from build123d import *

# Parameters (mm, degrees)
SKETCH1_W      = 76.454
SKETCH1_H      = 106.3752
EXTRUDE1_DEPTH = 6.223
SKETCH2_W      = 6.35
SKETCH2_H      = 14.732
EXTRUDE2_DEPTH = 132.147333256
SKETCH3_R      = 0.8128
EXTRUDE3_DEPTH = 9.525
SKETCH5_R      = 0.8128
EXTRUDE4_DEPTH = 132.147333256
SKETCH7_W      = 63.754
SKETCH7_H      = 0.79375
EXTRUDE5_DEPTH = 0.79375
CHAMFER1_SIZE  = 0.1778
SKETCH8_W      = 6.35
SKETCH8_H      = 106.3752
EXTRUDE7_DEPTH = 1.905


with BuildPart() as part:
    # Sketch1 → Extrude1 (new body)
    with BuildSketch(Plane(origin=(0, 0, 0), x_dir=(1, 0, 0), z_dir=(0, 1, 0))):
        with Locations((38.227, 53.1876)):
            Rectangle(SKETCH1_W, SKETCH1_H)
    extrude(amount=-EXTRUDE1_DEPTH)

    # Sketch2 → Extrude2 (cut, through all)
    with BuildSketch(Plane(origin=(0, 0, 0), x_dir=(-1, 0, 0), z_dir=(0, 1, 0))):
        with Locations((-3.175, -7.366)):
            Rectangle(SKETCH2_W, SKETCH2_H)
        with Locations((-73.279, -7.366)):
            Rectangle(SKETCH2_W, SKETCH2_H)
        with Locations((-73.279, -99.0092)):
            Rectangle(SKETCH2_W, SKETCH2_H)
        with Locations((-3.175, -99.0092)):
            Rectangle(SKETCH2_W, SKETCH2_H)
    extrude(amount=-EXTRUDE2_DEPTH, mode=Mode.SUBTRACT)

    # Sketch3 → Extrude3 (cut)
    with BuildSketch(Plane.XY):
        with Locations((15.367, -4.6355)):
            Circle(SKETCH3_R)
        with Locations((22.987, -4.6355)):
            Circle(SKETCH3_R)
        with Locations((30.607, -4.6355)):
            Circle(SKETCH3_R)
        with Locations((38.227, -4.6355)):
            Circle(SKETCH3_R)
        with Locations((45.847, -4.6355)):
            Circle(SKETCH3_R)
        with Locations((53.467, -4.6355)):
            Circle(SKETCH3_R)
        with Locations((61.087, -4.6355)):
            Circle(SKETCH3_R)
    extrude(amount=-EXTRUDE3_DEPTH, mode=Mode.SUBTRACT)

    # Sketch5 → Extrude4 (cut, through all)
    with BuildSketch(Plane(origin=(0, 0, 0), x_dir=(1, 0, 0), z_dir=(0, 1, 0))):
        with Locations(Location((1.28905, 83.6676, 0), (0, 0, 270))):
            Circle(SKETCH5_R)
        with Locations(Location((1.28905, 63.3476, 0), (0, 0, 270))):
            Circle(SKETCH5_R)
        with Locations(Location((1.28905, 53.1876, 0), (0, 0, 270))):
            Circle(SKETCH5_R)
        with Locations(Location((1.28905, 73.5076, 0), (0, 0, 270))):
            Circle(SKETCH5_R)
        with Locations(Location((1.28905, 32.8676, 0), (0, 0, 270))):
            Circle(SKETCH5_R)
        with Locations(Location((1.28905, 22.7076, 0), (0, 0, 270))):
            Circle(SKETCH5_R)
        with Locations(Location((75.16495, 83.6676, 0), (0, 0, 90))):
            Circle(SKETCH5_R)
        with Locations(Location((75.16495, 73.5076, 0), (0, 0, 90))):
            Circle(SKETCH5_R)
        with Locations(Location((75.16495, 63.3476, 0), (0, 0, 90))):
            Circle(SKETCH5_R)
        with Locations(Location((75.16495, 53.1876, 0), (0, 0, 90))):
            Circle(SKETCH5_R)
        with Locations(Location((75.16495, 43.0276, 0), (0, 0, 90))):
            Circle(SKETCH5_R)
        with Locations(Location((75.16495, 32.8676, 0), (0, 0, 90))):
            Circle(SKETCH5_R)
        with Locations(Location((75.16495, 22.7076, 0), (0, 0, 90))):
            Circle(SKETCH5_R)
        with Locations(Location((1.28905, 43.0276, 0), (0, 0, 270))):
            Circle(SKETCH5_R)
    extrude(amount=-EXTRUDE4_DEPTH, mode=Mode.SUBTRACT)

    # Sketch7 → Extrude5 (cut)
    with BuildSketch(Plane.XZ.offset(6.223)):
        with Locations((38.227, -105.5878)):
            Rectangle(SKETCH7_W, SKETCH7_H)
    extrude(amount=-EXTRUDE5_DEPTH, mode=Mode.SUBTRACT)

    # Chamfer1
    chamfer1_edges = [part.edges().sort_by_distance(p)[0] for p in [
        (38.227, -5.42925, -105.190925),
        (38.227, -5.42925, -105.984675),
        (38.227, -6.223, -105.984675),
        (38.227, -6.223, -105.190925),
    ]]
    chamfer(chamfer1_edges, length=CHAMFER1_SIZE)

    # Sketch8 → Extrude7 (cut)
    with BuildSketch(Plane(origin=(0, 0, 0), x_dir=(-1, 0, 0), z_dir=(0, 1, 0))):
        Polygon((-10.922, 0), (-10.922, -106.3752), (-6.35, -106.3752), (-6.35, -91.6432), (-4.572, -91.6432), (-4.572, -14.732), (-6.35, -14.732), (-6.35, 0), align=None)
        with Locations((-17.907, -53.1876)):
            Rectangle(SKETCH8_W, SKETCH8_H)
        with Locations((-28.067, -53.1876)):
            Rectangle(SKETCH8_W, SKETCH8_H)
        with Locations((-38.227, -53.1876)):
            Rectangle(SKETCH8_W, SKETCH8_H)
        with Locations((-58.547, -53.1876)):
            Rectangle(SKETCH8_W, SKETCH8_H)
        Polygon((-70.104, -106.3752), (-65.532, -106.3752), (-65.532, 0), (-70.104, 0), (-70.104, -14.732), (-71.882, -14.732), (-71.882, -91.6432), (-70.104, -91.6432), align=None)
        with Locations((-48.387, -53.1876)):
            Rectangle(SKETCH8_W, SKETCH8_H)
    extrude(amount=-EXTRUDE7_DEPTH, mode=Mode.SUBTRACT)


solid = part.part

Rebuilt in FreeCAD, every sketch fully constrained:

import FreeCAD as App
import Part
import Sketcher
Q = App.Units.Quantity


def edges_at(feature, points):
    """Names of the edges that pass closest to the given points."""
    edges = feature.Shape.Edges
    near = lambda p: min(range(len(edges)), key=lambda i: edges[i].distToShape(Part.Vertex(*p))[0])
    return sorted({f"Edge{near(p) + 1}" for p in points})


def add_polygon(sketch, points):
    """Adds a closed chain of lines whose ends are joined by coincident constraints."""
    first, n = sketch.GeometryCount, len(points)
    for a, b in zip(points, points[1:] + points[:1]):
        sketch.addGeometry(Part.LineSegment(App.Vector(*a, 0), App.Vector(*b, 0)), False)
    for i in range(n):
        sketch.addConstraint(Sketcher.Constraint("Coincident", first + i, 2, first + (i + 1) % n, 1))

doc = App.newDocument("Part")
body = doc.addObject("PartDesign::Body", "Body")

# Sketch on XZ plane
sketch1 = body.newObject("Sketcher::SketchObject", "Sketch")
sketch1.AttachmentSupport = (doc.getObject("XZ_Plane"), [""])
sketch1.MapMode = "FlatFace"
add_polygon(sketch1, [(0, -106), (0, 0), (76, 0), (76, -106)])  # lines 0-3
sketch1.addConstraint(Sketcher.Constraint("Vertical", 0))
sketch1.addConstraint(Sketcher.Constraint("Horizontal", 1))
sketch1.addConstraint(Sketcher.Constraint("Vertical", 2))
sketch1.addConstraint(Sketcher.Constraint("Horizontal", 3))
sketch1.addConstraint(Sketcher.Constraint("Coincident", 0, 2, -1, 1))
sketch1.addConstraint(Sketcher.Constraint("DistanceX", 1, 1, 1, 2, Q("3.01 in")))
sketch1.addConstraint(Sketcher.Constraint("DistanceY", 0, 1, 0, 2, Q("4.188 in")))
pad1 = body.newObject("PartDesign::Pad", "Pad")
pad1.Profile = sketch1
pad1.Length = Q("0.245 in")

# Sketch on XZ plane
sketch2 = body.newObject("Sketcher::SketchObject", "Sketch001")
sketch2.AttachmentSupport = (doc.getObject("XZ_Plane"), [""])
sketch2.MapMode = "FlatFace"
add_polygon(sketch2, [(6, 0), (6, -15), (0, -15), (0, 0)])  # lines 0-3
add_polygon(sketch2, [(76, 0), (76, -15), (70, -15), (70, 0)])  # lines 4-7
add_polygon(sketch2, [(76, -92), (76, -106), (70, -106), (70, -92)])  # lines 8-11
add_polygon(sketch2, [(6, -92), (6, -106), (0, -106), (0, -92)])  # lines 12-15
sketch2.addConstraint(Sketcher.Constraint("Vertical", 0))
sketch2.addConstraint(Sketcher.Constraint("Horizontal", 1))
sketch2.addConstraint(Sketcher.Constraint("Vertical", 2))
sketch2.addConstraint(Sketcher.Constraint("Horizontal", 3))
sketch2.addConstraint(Sketcher.Constraint("Vertical", 4))
sketch2.addConstraint(Sketcher.Constraint("Horizontal", 5))
sketch2.addConstraint(Sketcher.Constraint("Vertical", 6))
sketch2.addConstraint(Sketcher.Constraint("Horizontal", 7))
sketch2.addConstraint(Sketcher.Constraint("Vertical", 8))
sketch2.addConstraint(Sketcher.Constraint("Horizontal", 9))
sketch2.addConstraint(Sketcher.Constraint("Vertical", 10))
sketch2.addConstraint(Sketcher.Constraint("Horizontal", 11))
sketch2.addConstraint(Sketcher.Constraint("Vertical", 12))
sketch2.addConstraint(Sketcher.Constraint("Horizontal", 13))
sketch2.addConstraint(Sketcher.Constraint("Vertical", 14))
sketch2.addConstraint(Sketcher.Constraint("Horizontal", 15))
sketch2.addConstraint(Sketcher.Constraint("Coincident", 2, 2, -1, 1))
sketch2.addConstraint(Sketcher.Constraint("PointOnObject", 6, 2, -1))
sketch2.addConstraint(Sketcher.Constraint("PointOnObject", 13, 2, -2))
sketch2.addConstraint(Sketcher.Constraint("Horizontal", 1, 2, 4, 2))
sketch2.addConstraint(Sketcher.Constraint("Horizontal", 9, 2, 12, 2))
sketch2.addConstraint(Sketcher.Constraint("Horizontal", 11, 2, 14, 2))
sketch2.addConstraint(Sketcher.Constraint("Vertical", 7, 2, 8, 2))
sketch2.addConstraint(Sketcher.Constraint("Vertical", 6, 2, 9, 2))
sketch2.addConstraint(Sketcher.Constraint("Vertical", 3, 2, 12, 2))
sketch2.addConstraint(Sketcher.Constraint("Equal", 3, 5))
sketch2.addConstraint(Sketcher.Constraint("Equal", 6, 8))
sketch2.addConstraint(Sketcher.Constraint("DistanceX", 1, 2, 1, 1, Q("0.25 in")))
sketch2.addConstraint(Sketcher.Constraint("DistanceY", 0, 2, 0, 1, Q("0.58 in")))
sketch2.addConstraint(Sketcher.Constraint("DistanceX", -1, 1, 4, 2, Q("3.01 in")))
sketch2.addConstraint(Sketcher.Constraint("DistanceY", 8, 2, -1, 1, Q("4.188 in")))
pocket1 = body.newObject("PartDesign::Pocket", "Pocket")
pocket1.Profile = sketch2
pocket1.Type = "ThroughAll"
pocket1.Reversed = True

# Sketch on XY plane
sketch3 = body.newObject("Sketcher::SketchObject", "Sketch002")
sketch3.AttachmentSupport = (doc.getObject("XY_Plane"), [""])
sketch3.MapMode = "FlatFace"
sketch3.addGeometry(Part.Circle(App.Vector(15.4, -4.6, 0), App.Vector(0, 0, 1), 0.8), False)
sketch3.addGeometry(Part.Circle(App.Vector(23, -4.6, 0), App.Vector(0, 0, 1), 0.8), False)
sketch3.addGeometry(Part.Circle(App.Vector(30.6, -4.6, 0), App.Vector(0, 0, 1), 0.8), False)
sketch3.addGeometry(Part.Circle(App.Vector(38.2, -4.6, 0), App.Vector(0, 0, 1), 0.8), False)
sketch3.addGeometry(Part.Circle(App.Vector(45.8, -4.6, 0), App.Vector(0, 0, 1), 0.8), False)
sketch3.addGeometry(Part.Circle(App.Vector(53.5, -4.6, 0), App.Vector(0, 0, 1), 0.8), False)
sketch3.addGeometry(Part.Circle(App.Vector(61.1, -4.6, 0), App.Vector(0, 0, 1), 0.8), False)
sketch3.addConstraint(Sketcher.Constraint("Equal", 0, 1))
sketch3.addConstraint(Sketcher.Constraint("Equal", 1, 2))
sketch3.addConstraint(Sketcher.Constraint("Equal", 2, 3))
sketch3.addConstraint(Sketcher.Constraint("Equal", 3, 4))
sketch3.addConstraint(Sketcher.Constraint("Equal", 4, 5))
sketch3.addConstraint(Sketcher.Constraint("Equal", 5, 6))
sketch3.addConstraint(Sketcher.Constraint("Horizontal", 0, 3, 1, 3))
sketch3.addConstraint(Sketcher.Constraint("Horizontal", 1, 3, 2, 3))
sketch3.addConstraint(Sketcher.Constraint("Horizontal", 2, 3, 3, 3))
sketch3.addConstraint(Sketcher.Constraint("Horizontal", 3, 3, 4, 3))
sketch3.addConstraint(Sketcher.Constraint("Horizontal", 4, 3, 5, 3))
sketch3.addConstraint(Sketcher.Constraint("Horizontal", 5, 3, 6, 3))
sketch3.addConstraint(Sketcher.Constraint("Diameter", 0, Q("0.064 in")))
sketch3.addConstraint(Sketcher.Constraint("DistanceX", 0, 3, 1, 3, Q("0.3 in")))
sketch3.addConstraint(Sketcher.Constraint("DistanceX", 1, 3, 2, 3, Q("0.3 in")))
sketch3.addConstraint(Sketcher.Constraint("DistanceX", 2, 3, 3, 3, Q("0.3 in")))
sketch3.addConstraint(Sketcher.Constraint("DistanceX", 3, 3, 4, 3, Q("0.3 in")))
sketch3.addConstraint(Sketcher.Constraint("DistanceX", 4, 3, 5, 3, Q("0.3 in")))
sketch3.addConstraint(Sketcher.Constraint("DistanceX", 5, 3, 6, 3, Q("0.3 in")))
sketch3.addConstraint(Sketcher.Constraint("DistanceX", -1, 1, 0, 3, Q("0.605 in")))
sketch3.addConstraint(Sketcher.Constraint("DistanceY", 0, 3, -1, 1, Q("0.1825 in")))
pocket2 = body.newObject("PartDesign::Pocket", "Pocket001")
pocket2.Profile = sketch3
pocket2.Length = Q("0.375 in")

# Sketch on XZ plane
sketch4 = body.newObject("Sketcher::SketchObject", "Sketch003")
sketch4.AttachmentSupport = (doc.getObject("XZ_Plane"), [""])
sketch4.MapMode = "FlatFace"
sketch4.addGeometry(Part.Circle(App.Vector(1.3, -83.7, 0), App.Vector(0, 0, 1), 0.8), False)
sketch4.addGeometry(Part.Circle(App.Vector(1.3, -63.3, 0), App.Vector(0, 0, 1), 0.8), False)
sketch4.addGeometry(Part.Circle(App.Vector(1.3, -53.2, 0), App.Vector(0, 0, 1), 0.8), False)
sketch4.addGeometry(Part.Circle(App.Vector(1.3, -73.5, 0), App.Vector(0, 0, 1), 0.8), False)
sketch4.addGeometry(Part.Circle(App.Vector(1.3, -32.9, 0), App.Vector(0, 0, 1), 0.8), False)
sketch4.addGeometry(Part.Circle(App.Vector(1.3, -22.7, 0), App.Vector(0, 0, 1), 0.8), False)
sketch4.addGeometry(Part.Circle(App.Vector(75.2, -83.7, 0), App.Vector(0, 0, 1), 0.8), False)
sketch4.addGeometry(Part.Circle(App.Vector(75.2, -73.5, 0), App.Vector(0, 0, 1), 0.8), False)
sketch4.addGeometry(Part.Circle(App.Vector(75.2, -63.3, 0), App.Vector(0, 0, 1), 0.8), False)
sketch4.addGeometry(Part.Circle(App.Vector(75.2, -53.2, 0), App.Vector(0, 0, 1), 0.8), False)
sketch4.addGeometry(Part.Circle(App.Vector(75.2, -43, 0), App.Vector(0, 0, 1), 0.8), False)
sketch4.addGeometry(Part.Circle(App.Vector(75.2, -32.9, 0), App.Vector(0, 0, 1), 0.8), False)
sketch4.addGeometry(Part.Circle(App.Vector(75.2, -22.7, 0), App.Vector(0, 0, 1), 0.8), False)
sketch4.addGeometry(Part.Circle(App.Vector(1.3, -43, 0), App.Vector(0, 0, 1), 0.8), False)
sketch4.addConstraint(Sketcher.Constraint("Equal", 0, 1))
sketch4.addConstraint(Sketcher.Constraint("Equal", 1, 2))
sketch4.addConstraint(Sketcher.Constraint("Equal", 2, 3))
sketch4.addConstraint(Sketcher.Constraint("Equal", 3, 4))
sketch4.addConstraint(Sketcher.Constraint("Equal", 4, 5))
sketch4.addConstraint(Sketcher.Constraint("Equal", 5, 6))
sketch4.addConstraint(Sketcher.Constraint("Equal", 6, 7))
sketch4.addConstraint(Sketcher.Constraint("Equal", 7, 8))
sketch4.addConstraint(Sketcher.Constraint("Equal", 8, 9))
sketch4.addConstraint(Sketcher.Constraint("Equal", 9, 10))
sketch4.addConstraint(Sketcher.Constraint("Equal", 10, 11))
sketch4.addConstraint(Sketcher.Constraint("Equal", 11, 12))
sketch4.addConstraint(Sketcher.Constraint("Equal", 12, 13))
sketch4.addConstraint(Sketcher.Constraint("Horizontal", 0, 3, 6, 3))
sketch4.addConstraint(Sketcher.Constraint("Horizontal", 3, 3, 7, 3))
sketch4.addConstraint(Sketcher.Constraint("Horizontal", 1, 3, 8, 3))
sketch4.addConstraint(Sketcher.Constraint("Horizontal", 2, 3, 9, 3))
sketch4.addConstraint(Sketcher.Constraint("Horizontal", 4, 3, 11, 3))
sketch4.addConstraint(Sketcher.Constraint("Horizontal", 5, 3, 12, 3))
sketch4.addConstraint(Sketcher.Constraint("Horizontal", 10, 3, 13, 3))
sketch4.addConstraint(Sketcher.Constraint("Vertical", 0, 3, 1, 3))
sketch4.addConstraint(Sketcher.Constraint("Vertical", 1, 3, 2, 3))
sketch4.addConstraint(Sketcher.Constraint("Vertical", 2, 3, 3, 3))
sketch4.addConstraint(Sketcher.Constraint("Vertical", 3, 3, 4, 3))
sketch4.addConstraint(Sketcher.Constraint("Vertical", 4, 3, 5, 3))
sketch4.addConstraint(Sketcher.Constraint("Vertical", 6, 3, 7, 3))
sketch4.addConstraint(Sketcher.Constraint("Vertical", 7, 3, 8, 3))
sketch4.addConstraint(Sketcher.Constraint("Vertical", 8, 3, 9, 3))
sketch4.addConstraint(Sketcher.Constraint("Vertical", 9, 3, 10, 3))
sketch4.addConstraint(Sketcher.Constraint("Vertical", 10, 3, 11, 3))
sketch4.addConstraint(Sketcher.Constraint("Vertical", 11, 3, 12, 3))
sketch4.addConstraint(Sketcher.Constraint("Vertical", 5, 3, 13, 3))
sketch4.addConstraint(Sketcher.Constraint("Diameter", 0, Q("0.064 in")))
sketch4.addConstraint(Sketcher.Constraint("DistanceY", 0, 3, 4, 3, Q("2 in")))
sketch4.addConstraint(Sketcher.Constraint("DistanceY", 3, 3, 5, 3, Q("2 in")))
sketch4.addConstraint(Sketcher.Constraint("DistanceY", 0, 3, 1, 3, Q("0.8 in")))
sketch4.addConstraint(Sketcher.Constraint("DistanceY", 1, 3, 2, 3, Q("0.4 in")))
sketch4.addConstraint(Sketcher.Constraint("DistanceY", 0, 3, 3, 3, Q("0.4 in")))
sketch4.addConstraint(Sketcher.Constraint("DistanceY", 9, 3, 10, 3, Q("0.4 in")))
sketch4.addConstraint(Sketcher.Constraint("DistanceY", 0, 3, -1, 1, Q("3.294 in")))
sketch4.addConstraint(Sketcher.Constraint("DistanceX", 0, 3, 6, 3, Q("2.9085 in")))
sketch4.addConstraint(Sketcher.Constraint("DistanceX", -1, 1, 0, 3, 1.28905))
pocket3 = body.newObject("PartDesign::Pocket", "Pocket002")
pocket3.Profile = sketch4
pocket3.Type = "ThroughAll"
pocket3.Reversed = True

# Sketch on XZ plane
sketch5 = body.newObject("Sketcher::SketchObject", "Sketch004")
sketch5.AttachmentSupport = (doc.getObject("XZ_Plane"), [""])
sketch5.MapMode = "FlatFace"
sketch5.AttachmentOffset = App.Placement(App.Vector(0, 0, 0.245 * 25.4), App.Rotation())
add_polygon(sketch5, [(6.3, -105.2), (6.3, -106), (70.1, -106), (70.1, -105.2)])  # lines 0-3
sketch5.addConstraint(Sketcher.Constraint("Vertical", 0))
sketch5.addConstraint(Sketcher.Constraint("Horizontal", 1))
sketch5.addConstraint(Sketcher.Constraint("Vertical", 2))
sketch5.addConstraint(Sketcher.Constraint("Horizontal", 3))
sketch5.addConstraint(Sketcher.Constraint("DistanceX", 1, 1, 1, 2, Q("2.51 in")))
sketch5.addConstraint(Sketcher.Constraint("DistanceY", 0, 2, 0, 1, Q("0.03125 in")))
sketch5.addConstraint(Sketcher.Constraint("DistanceX", -1, 1, 0, 2, Q("0.25 in")))
sketch5.addConstraint(Sketcher.Constraint("DistanceY", 0, 2, -1, 1, 105.984675))
pocket4 = body.newObject("PartDesign::Pocket", "Pocket003")
pocket4.Profile = sketch5
pocket4.Length = Q("0.03125 in")
doc.recompute()

chamfer = body.newObject("PartDesign::Chamfer", "Chamfer")
chamfer.Base = (pocket4, edges_at(pocket4, [
    (38.227, -5.429, -105.191),
    (38.227, -5.429, -105.985),
    (38.227, -6.223, -105.985),
    (38.227, -6.223, -105.191),
]))
chamfer.Size = Q("0.007 in")

# Sketch on XZ plane
sketch6 = body.newObject("Sketcher::SketchObject", "Sketch005")
sketch6.AttachmentSupport = (doc.getObject("XZ_Plane"), [""])
sketch6.MapMode = "FlatFace"
add_polygon(sketch6, [(10.9, 0), (10.9, -106.4), (6.3, -106.4), (6.3, -91.6), (4.6, -91.6), (4.6, -14.7), (6.3, -14.7), (6.3, 0)])  # lines 0-7
add_polygon(sketch6, [(21.1, 0), (21.1, -106.4), (14.7, -106.4), (14.7, 0)])  # lines 8-11
add_polygon(sketch6, [(31.2, 0), (31.2, -106.4), (24.9, -106.4), (24.9, 0)])  # lines 12-15
add_polygon(sketch6, [(41.4, 0), (41.4, -106.4), (35.1, -106.4), (35.1, 0)])  # lines 16-19
add_polygon(sketch6, [(61.7, 0), (61.7, -106.4), (55.4, -106.4), (55.4, 0)])  # lines 20-23
add_polygon(sketch6, [(70.1, -106.4), (65.5, -106.4), (65.5, 0), (70.1, 0), (70.1, -14.7), (71.9, -14.7), (71.9, -91.6), (70.1, -91.6)])  # lines 24-31
add_polygon(sketch6, [(51.6, 0), (51.6, -106.4), (45.2, -106.4), (45.2, 0)])  # lines 32-35
sketch6.addConstraint(Sketcher.Constraint("Vertical", 0))
sketch6.addConstraint(Sketcher.Constraint("Horizontal", 1))
sketch6.addConstraint(Sketcher.Constraint("Vertical", 2))
sketch6.addConstraint(Sketcher.Constraint("Horizontal", 3))
sketch6.addConstraint(Sketcher.Constraint("Vertical", 4))
sketch6.addConstraint(Sketcher.Constraint("Horizontal", 5))
sketch6.addConstraint(Sketcher.Constraint("Vertical", 6))
sketch6.addConstraint(Sketcher.Constraint("Horizontal", 7))
sketch6.addConstraint(Sketcher.Constraint("Vertical", 8))
sketch6.addConstraint(Sketcher.Constraint("Horizontal", 9))
sketch6.addConstraint(Sketcher.Constraint("Vertical", 10))
sketch6.addConstraint(Sketcher.Constraint("Horizontal", 11))
sketch6.addConstraint(Sketcher.Constraint("Vertical", 12))
sketch6.addConstraint(Sketcher.Constraint("Horizontal", 13))
sketch6.addConstraint(Sketcher.Constraint("Vertical", 14))
sketch6.addConstraint(Sketcher.Constraint("Horizontal", 15))
sketch6.addConstraint(Sketcher.Constraint("Vertical", 16))
sketch6.addConstraint(Sketcher.Constraint("Horizontal", 17))
sketch6.addConstraint(Sketcher.Constraint("Vertical", 18))
sketch6.addConstraint(Sketcher.Constraint("Horizontal", 19))
sketch6.addConstraint(Sketcher.Constraint("Vertical", 20))
sketch6.addConstraint(Sketcher.Constraint("Horizontal", 21))
sketch6.addConstraint(Sketcher.Constraint("Vertical", 22))
sketch6.addConstraint(Sketcher.Constraint("Horizontal", 23))
sketch6.addConstraint(Sketcher.Constraint("Horizontal", 24))
sketch6.addConstraint(Sketcher.Constraint("Vertical", 25))
sketch6.addConstraint(Sketcher.Constraint("Horizontal", 26))
sketch6.addConstraint(Sketcher.Constraint("Vertical", 27))
sketch6.addConstraint(Sketcher.Constraint("Horizontal", 28))
sketch6.addConstraint(Sketcher.Constraint("Vertical", 29))
sketch6.addConstraint(Sketcher.Constraint("Horizontal", 30))
sketch6.addConstraint(Sketcher.Constraint("Vertical", 31))
sketch6.addConstraint(Sketcher.Constraint("Vertical", 32))
sketch6.addConstraint(Sketcher.Constraint("Horizontal", 33))
sketch6.addConstraint(Sketcher.Constraint("Vertical", 34))
sketch6.addConstraint(Sketcher.Constraint("Horizontal", 35))
sketch6.addConstraint(Sketcher.Constraint("PointOnObject", 6, 2, -1))
sketch6.addConstraint(Sketcher.Constraint("PointOnObject", 10, 2, -1))
sketch6.addConstraint(Sketcher.Constraint("PointOnObject", 14, 2, -1))
sketch6.addConstraint(Sketcher.Constraint("PointOnObject", 18, 2, -1))
sketch6.addConstraint(Sketcher.Constraint("PointOnObject", 22, 2, -1))
sketch6.addConstraint(Sketcher.Constraint("PointOnObject", 25, 2, -1))
sketch6.addConstraint(Sketcher.Constraint("PointOnObject", 34, 2, -1))
sketch6.addConstraint(Sketcher.Constraint("Horizontal", 1, 2, 8, 2))
sketch6.addConstraint(Sketcher.Constraint("Horizontal", 9, 2, 12, 2))
sketch6.addConstraint(Sketcher.Constraint("Horizontal", 13, 2, 16, 2))
sketch6.addConstraint(Sketcher.Constraint("Horizontal", 17, 2, 20, 2))
sketch6.addConstraint(Sketcher.Constraint("Horizontal", 21, 2, 24, 2))
sketch6.addConstraint(Sketcher.Constraint("Horizontal", 5, 2, 27, 2))
sketch6.addConstraint(Sketcher.Constraint("Horizontal", 3, 2, 29, 2))
sketch6.addConstraint(Sketcher.Constraint("Horizontal", 31, 2, 32, 2))
sketch6.addConstraint(Sketcher.Constraint("Vertical", 2, 2, 5, 2))
sketch6.addConstraint(Sketcher.Constraint("Vertical", 27, 2, 30, 2))
sketch6.addConstraint(Sketcher.Constraint("Equal", 11, 13))
sketch6.addConstraint(Sketcher.Constraint("Equal", 15, 17))
sketch6.addConstraint(Sketcher.Constraint("Equal", 19, 21))
sketch6.addConstraint(Sketcher.Constraint("Equal", 7, 24))
sketch6.addConstraint(Sketcher.Constraint("Equal", 5, 28))
sketch6.addConstraint(Sketcher.Constraint("Equal", 23, 33))
sketch6.addConstraint(Sketcher.Constraint("Equal", 2, 6))
sketch6.addConstraint(Sketcher.Constraint("DistanceX", 1, 2, 1, 1, Q("0.18 in")))
sketch6.addConstraint(Sketcher.Constraint("DistanceX", 3, 2, 3, 1, Q("0.07 in")))
sketch6.addConstraint(Sketcher.Constraint("DistanceX", 9, 2, 9, 1, Q("0.25 in")))
sketch6.addConstraint(Sketcher.Constraint("DistanceY", 2, 1, 2, 2, Q("0.58 in")))
sketch6.addConstraint(Sketcher.Constraint("DistanceX", 0, 2, 8, 2, Q("0.4 in")))
sketch6.addConstraint(Sketcher.Constraint("DistanceX", 8, 2, 12, 2, Q("0.4 in")))
sketch6.addConstraint(Sketcher.Constraint("DistanceX", 12, 2, 16, 2, Q("0.4 in")))
sketch6.addConstraint(Sketcher.Constraint("DistanceX", 16, 2, 20, 2, Q("0.8 in")))
sketch6.addConstraint(Sketcher.Constraint("DistanceX", 21, 2, 24, 2, Q("0.4 in")))
sketch6.addConstraint(Sketcher.Constraint("DistanceX", 16, 2, 32, 2, Q("0.4 in")))
sketch6.addConstraint(Sketcher.Constraint("DistanceY", 0, 2, 0, 1, Q("4.188 in")))
sketch6.addConstraint(Sketcher.Constraint("DistanceX", -1, 1, 0, 2, Q("0.43 in")))
pocket5 = body.newObject("PartDesign::Pocket", "Pocket004")
pocket5.Profile = sketch6
pocket5.Length = Q("0.075 in")
pocket5.Reversed = True

doc.recompute()
